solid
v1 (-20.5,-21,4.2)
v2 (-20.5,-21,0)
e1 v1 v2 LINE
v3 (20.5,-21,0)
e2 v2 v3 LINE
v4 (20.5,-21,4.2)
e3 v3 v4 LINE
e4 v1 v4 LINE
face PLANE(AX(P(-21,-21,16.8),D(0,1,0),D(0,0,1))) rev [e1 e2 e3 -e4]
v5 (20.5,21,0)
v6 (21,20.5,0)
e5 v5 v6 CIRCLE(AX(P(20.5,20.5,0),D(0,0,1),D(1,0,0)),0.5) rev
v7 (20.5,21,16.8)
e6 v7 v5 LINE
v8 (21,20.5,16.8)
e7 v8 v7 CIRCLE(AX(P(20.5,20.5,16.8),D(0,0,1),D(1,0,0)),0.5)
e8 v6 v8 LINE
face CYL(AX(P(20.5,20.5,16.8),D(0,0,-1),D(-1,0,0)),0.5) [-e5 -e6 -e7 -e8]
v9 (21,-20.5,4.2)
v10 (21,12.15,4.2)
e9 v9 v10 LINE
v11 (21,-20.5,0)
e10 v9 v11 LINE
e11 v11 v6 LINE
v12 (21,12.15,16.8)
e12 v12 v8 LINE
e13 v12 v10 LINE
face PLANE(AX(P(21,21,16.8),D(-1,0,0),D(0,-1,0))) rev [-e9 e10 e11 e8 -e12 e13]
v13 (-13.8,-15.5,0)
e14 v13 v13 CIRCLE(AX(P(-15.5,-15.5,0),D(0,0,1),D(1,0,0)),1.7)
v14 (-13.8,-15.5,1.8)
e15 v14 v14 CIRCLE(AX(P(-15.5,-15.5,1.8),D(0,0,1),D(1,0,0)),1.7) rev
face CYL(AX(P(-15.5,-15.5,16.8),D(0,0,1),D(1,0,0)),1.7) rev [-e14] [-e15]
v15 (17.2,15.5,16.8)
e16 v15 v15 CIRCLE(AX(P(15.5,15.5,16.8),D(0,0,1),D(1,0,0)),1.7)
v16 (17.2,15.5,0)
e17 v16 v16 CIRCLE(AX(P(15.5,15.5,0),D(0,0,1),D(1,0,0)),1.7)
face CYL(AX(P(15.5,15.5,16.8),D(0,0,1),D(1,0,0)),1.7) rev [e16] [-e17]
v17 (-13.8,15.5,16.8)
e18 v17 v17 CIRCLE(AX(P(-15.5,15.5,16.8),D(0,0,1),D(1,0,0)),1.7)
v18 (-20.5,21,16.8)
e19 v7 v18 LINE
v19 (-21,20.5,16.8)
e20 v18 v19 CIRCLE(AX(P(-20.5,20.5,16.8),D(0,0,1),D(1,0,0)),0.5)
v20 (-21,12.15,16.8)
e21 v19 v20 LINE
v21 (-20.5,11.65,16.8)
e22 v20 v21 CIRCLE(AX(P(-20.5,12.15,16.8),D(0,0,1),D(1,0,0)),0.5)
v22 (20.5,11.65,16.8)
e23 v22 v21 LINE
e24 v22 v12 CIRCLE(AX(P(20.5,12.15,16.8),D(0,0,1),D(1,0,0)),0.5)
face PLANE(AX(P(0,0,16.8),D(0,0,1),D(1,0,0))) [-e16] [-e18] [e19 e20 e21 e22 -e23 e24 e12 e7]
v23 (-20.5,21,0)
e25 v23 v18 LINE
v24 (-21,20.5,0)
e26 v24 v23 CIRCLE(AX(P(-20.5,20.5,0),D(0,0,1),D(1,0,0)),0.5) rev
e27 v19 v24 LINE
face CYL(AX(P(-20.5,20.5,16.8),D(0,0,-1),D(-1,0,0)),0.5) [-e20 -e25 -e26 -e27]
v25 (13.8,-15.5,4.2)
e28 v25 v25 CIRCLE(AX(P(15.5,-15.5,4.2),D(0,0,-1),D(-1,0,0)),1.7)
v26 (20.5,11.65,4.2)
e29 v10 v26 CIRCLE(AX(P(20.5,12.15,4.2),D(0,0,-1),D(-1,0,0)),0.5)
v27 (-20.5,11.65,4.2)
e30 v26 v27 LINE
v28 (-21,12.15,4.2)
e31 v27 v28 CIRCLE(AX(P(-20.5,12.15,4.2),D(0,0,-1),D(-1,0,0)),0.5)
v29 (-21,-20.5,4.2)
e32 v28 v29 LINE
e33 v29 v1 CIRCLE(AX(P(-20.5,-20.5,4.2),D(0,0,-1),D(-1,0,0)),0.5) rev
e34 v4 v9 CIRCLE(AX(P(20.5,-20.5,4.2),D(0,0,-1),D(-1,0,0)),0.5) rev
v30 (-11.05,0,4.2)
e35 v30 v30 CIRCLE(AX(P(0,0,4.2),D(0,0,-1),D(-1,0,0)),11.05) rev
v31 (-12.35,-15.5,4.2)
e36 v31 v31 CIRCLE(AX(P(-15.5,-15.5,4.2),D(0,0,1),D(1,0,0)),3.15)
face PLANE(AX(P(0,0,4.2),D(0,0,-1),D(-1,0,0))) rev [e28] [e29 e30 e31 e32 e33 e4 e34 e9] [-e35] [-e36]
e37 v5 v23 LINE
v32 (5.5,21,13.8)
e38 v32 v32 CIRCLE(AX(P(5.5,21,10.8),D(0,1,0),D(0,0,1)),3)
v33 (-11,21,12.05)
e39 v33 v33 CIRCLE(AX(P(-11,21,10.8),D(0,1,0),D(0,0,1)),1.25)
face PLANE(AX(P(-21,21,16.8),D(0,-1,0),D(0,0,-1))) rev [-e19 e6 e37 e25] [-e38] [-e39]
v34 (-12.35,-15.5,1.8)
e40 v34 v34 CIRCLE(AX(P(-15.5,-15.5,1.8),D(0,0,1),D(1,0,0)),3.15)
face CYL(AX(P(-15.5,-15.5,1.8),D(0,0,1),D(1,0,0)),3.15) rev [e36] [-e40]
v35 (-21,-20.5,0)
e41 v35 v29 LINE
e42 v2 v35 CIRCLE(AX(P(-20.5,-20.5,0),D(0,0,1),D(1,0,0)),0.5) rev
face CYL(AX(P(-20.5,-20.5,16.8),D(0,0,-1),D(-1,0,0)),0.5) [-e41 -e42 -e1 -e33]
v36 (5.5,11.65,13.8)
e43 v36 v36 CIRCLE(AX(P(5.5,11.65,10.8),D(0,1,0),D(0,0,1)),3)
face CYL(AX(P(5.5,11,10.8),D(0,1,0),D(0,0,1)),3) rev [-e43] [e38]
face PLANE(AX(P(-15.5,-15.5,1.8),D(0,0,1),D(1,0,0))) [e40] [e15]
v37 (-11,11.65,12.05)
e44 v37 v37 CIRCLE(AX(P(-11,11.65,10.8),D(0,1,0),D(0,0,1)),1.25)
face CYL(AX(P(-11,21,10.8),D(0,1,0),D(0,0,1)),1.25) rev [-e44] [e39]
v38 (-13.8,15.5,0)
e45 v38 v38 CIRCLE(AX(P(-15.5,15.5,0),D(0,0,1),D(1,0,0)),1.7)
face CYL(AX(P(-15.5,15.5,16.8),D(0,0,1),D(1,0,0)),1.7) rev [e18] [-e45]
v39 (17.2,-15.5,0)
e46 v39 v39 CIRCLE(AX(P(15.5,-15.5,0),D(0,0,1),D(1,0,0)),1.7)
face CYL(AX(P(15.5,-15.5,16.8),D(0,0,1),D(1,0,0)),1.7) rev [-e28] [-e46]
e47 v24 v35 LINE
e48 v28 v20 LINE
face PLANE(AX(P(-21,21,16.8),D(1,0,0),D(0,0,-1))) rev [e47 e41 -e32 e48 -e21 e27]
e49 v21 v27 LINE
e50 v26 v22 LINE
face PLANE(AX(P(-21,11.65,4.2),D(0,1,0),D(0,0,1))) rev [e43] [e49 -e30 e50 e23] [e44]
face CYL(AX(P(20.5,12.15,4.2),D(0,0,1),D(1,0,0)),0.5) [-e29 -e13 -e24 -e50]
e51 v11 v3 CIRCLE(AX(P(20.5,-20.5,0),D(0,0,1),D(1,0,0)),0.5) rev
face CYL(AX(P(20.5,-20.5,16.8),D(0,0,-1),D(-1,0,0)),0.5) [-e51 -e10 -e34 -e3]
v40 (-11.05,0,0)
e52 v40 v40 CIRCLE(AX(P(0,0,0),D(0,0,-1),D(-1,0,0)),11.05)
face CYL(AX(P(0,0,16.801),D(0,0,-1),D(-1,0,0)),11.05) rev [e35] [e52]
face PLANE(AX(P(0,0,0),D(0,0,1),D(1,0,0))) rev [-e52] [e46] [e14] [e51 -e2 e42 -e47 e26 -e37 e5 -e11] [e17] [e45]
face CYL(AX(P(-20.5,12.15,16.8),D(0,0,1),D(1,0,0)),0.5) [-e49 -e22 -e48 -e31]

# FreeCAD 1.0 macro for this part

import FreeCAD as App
import Part
import Sketcher
from FreeCAD import Vector
Q = App.Units.Quantity


def edges_at(feature, points):
    """Names of the edges that pass closest to the given points."""
    edges = feature.Shape.Edges
    near = lambda p: min(range(len(edges)), key=lambda i: edges[i].distToShape(Part.Vertex(*p))[0])
    return sorted({f"Edge{near(p) + 1}" for p in points})


def add_polygon(sketch, points):
    """Adds a closed chain of lines whose ends are joined by coincident constraints."""
    first, n = sketch.GeometryCount, len(points)
    for a, b in zip(points, points[1:] + points[:1]):
        sketch.addGeometry(Part.LineSegment(App.Vector(*a, 0), App.Vector(*b, 0)), False)
    for i in range(n):
        sketch.addConstraint(Sketcher.Constraint("Coincident", first + i, 2, first + (i + 1) % n, 1))

doc = App.newDocument("Part")
body = doc.addObject("PartDesign::Body", "Body")

# Sketch on XY plane
sketch1 = doc.addObject("Sketcher::SketchObject", "Sketch")
body.addObject(sketch1)
sketch1.AttachmentSupport = (doc.XY_Plane, [""])
sketch1.MapMode = "FlatFace"
add_polygon(sketch1, [(-21, 21), (-21, -21), (21, -21), (21, 21)])  # lines 0-3
sketch1.addConstraint(Sketcher.Constraint("Vertical", 0))
sketch1.addConstraint(Sketcher.Constraint("Horizontal", 1))
sketch1.addConstraint(Sketcher.Constraint("Vertical", 2))
sketch1.addConstraint(Sketcher.Constraint("Horizontal", 3))
sketch1.addConstraint(Sketcher.Constraint("Symmetric", 0, 2, 2, 2, -1, 1))
sketch1.addConstraint(Sketcher.Constraint("Equal", 3, 0))
sketch1.addConstraint(Sketcher.Constraint("DistanceX", 1, 1, 1, 2, Q("42 mm")))
pad1 = doc.addObject("PartDesign::Pad", "Pad")
body.addObject(pad1)
pad1.Profile = sketch1
pad1.Length = 16.8

# Sketch on XY plane
sketch2 = doc.addObject("Sketcher::SketchObject", "Sketch001")
body.addObject(sketch2)
sketch2.AttachmentSupport = (doc.XY_Plane, [""])
sketch2.MapMode = "FlatFace"
sketch2.AttachmentOffset = App.Placement(Vector(0, 0, 16.8), App.Rotation())
add_polygon(sketch2, [(-21, 12), (-21, -21), (21, -21), (21, 12)])  # lines 0-3
sketch2.addConstraint(Sketcher.Constraint("Vertical", 0))
sketch2.addConstraint(Sketcher.Constraint("Horizontal", 1))
sketch2.addConstraint(Sketcher.Constraint("Vertical", 2))
sketch2.addConstraint(Sketcher.Constraint("Horizontal", 3))
sketch2.addConstraint(Sketcher.Constraint("DistanceX", 1, 1, 1, 2, Q("42 mm")))
sketch2.addConstraint(Sketcher.Constraint("DistanceX", 0, 2, -1, 1, Q("21 mm")))
sketch2.addConstraint(Sketcher.Constraint("DistanceY", 0, 2, -1, 1, Q("21 mm")))
sketch2.addConstraint(Sketcher.Constraint("DistanceY", 0, 2, 0, 1, Q("32.65 mm")))
pocket1 = doc.addObject("PartDesign::Pocket", "Pocket")
body.addObject(pocket1)
pocket1.Profile = sketch2
pocket1.Length = 12.6

# Sketch on XY plane
sketch3 = doc.addObject("Sketcher::SketchObject", "Sketch002")
body.addObject(sketch3)
sketch3.AttachmentSupport = (doc.XY_Plane, [""])
sketch3.MapMode = "FlatFace"
sketch3.addGeometry(Part.Circle(Vector(0, 0, 0), Vector(0, 0, 1), 11), False)
sketch3.addConstraint(Sketcher.Constraint("Coincident", 0, 3, -1, 1))
sketch3.addConstraint(Sketcher.Constraint("Diameter", 0, Q("22.1 mm")))
pocket2 = doc.addObject("PartDesign::Pocket", "Pocket001")
body.addObject(pocket2)
pocket2.Profile = sketch3
pocket2.Type = "UpToFirst"
pocket2.Reversed = True

# Sketch on XY plane
sketch4 = doc.addObject("Sketcher::SketchObject", "Sketch003")
body.addObject(sketch4)
sketch4.AttachmentSupport = (doc.XY_Plane, [""])
sketch4.MapMode = "FlatFace"
sketch4.AttachmentOffset = App.Placement(Vector(0, 0, 16.8), App.Rotation())
sketch4.addGeometry(Part.Circle(Vector(15.5, 15.5, 0), Vector(0, 0, 1), 1.7), False)
sketch4.addGeometry(Part.Circle(Vector(-15.5, 15.5, 0), Vector(0, 0, 1), 1.7), False)
sketch4.addGeometry(Part.Circle(Vector(-15.5, -15.5, 0), Vector(0, 0, 1), 1.7), False)
sketch4.addGeometry(Part.Circle(Vector(15.5, -15.5, 0), Vector(0, 0, 1), 1.7), False)
sketch4.addConstraint(Sketcher.Constraint("Equal", 0, 1))
sketch4.addConstraint(Sketcher.Constraint("Equal", 1, 2))
sketch4.addConstraint(Sketcher.Constraint("Equal", 2, 3))
sketch4.addConstraint(Sketcher.Constraint("Symmetric", 0, 3, 2, 3, -1, 1))
sketch4.addConstraint(Sketcher.Constraint("Symmetric", 1, 3, 3, 3, -1, 1))
sketch4.addConstraint(Sketcher.Constraint("Symmetric", 0, 3, 1, 3, -2))
sketch4.addConstraint(Sketcher.Constraint("Diameter", 0, Q("3.4 mm")))
sketch4.addConstraint(Sketcher.Constraint("DistanceX", 1, 3, 0, 3, Q("31 mm")))
sketch4.addConstraint(Sketcher.Constraint("DistanceY", 2, 3, 1, 3, Q("31 mm")))
doc.recompute()
hole = doc.addObject("PartDesign::Hole", "Hole")
body.addObject(hole)
hole.Profile = sketch4
hole.ThreadType = "None"
hole.Diameter = 3.4
hole.DepthType = "ThroughAll"

# Sketch on XY plane
sketch5 = doc.addObject("Sketcher::SketchObject", "Sketch004")
body.addObject(sketch5)
sketch5.AttachmentSupport = (doc.XY_Plane, [""])
sketch5.MapMode = "FlatFace"
sketch5.AttachmentOffset = App.Placement(Vector(0, 0, 4.2), App.Rotation())
sketch5.addGeometry(Part.Circle(Vector(-15.5, -15.5, 0), Vector(0, 0, 1), 3.1), False)
sketch5.addConstraint(Sketcher.Constraint("Diameter", 0, Q("6.3 mm")))
sketch5.addConstraint(Sketcher.Constraint("DistanceX", 0, 3, -1, 1, Q("15.5 mm")))
sketch5.addConstraint(Sketcher.Constraint("DistanceY", 0, 3, -1, 1, Q("15.5 mm")))
pocket3 = doc.addObject("PartDesign::Pocket", "Pocket002")
body.addObject(pocket3)
pocket3.Profile = sketch5
pocket3.Length = 2.4

# Sketch on XZ plane
sketch6 = doc.addObject("Sketcher::SketchObject", "Sketch005")
body.addObject(sketch6)
sketch6.AttachmentSupport = (doc.XZ_Plane, [""])
sketch6.MapMode = "FlatFace"
sketch6.AttachmentOffset = App.Placement(Vector(0, 0, -21), App.Rotation())
sketch6.addGeometry(Part.Circle(Vector(-11, 10.8, 0), Vector(0, 0, 1), 1.2), False)
sketch6.addConstraint(Sketcher.Constraint("Diameter", 0, Q("2.5 mm")))
sketch6.addConstraint(Sketcher.Constraint("DistanceX", 0, 3, -1, 1, Q("11 mm")))
sketch6.addConstraint(Sketcher.Constraint("DistanceY", -1, 1, 0, 3, Q("10.8 mm")))
doc.recompute()
hole2 = doc.addObject("PartDesign::Hole", "Hole001")
body.addObject(hole2)
hole2.Profile = sketch6
hole2.ThreadType = "None"
hole2.Diameter = 2.5
hole2.DepthType = "ThroughAll"
hole2.Reversed = True
doc.recompute()

fillet = doc.addObject("PartDesign::Fillet", "Fillet")
body.addObject(fillet)
fillet.Base = (hole2, edges_at(hole2, [
    (21, -21, 2.1),
    (-21, -21, 2.1),
    (-21, 11.65, 10.5),
    (21, 11.65, 10.5),
    (-21, 21, 8.4),
    (21, 21, 8.4),
]))
fillet.Radius = 0.5

# Sketch on XZ plane
sketch7 = doc.addObject("Sketcher::SketchObject", "Sketch006")
body.addObject(sketch7)
sketch7.AttachmentSupport = (doc.XZ_Plane, [""])
sketch7.MapMode = "FlatFace"
sketch7.AttachmentOffset = App.Placement(Vector(0, 0, -21), App.Rotation())
sketch7.addGeometry(Part.Circle(Vector(5.5, 10.8, 0), Vector(0, 0, 1), 3), False)
sketch7.addConstraint(Sketcher.Constraint("Diameter", 0, Q("6 mm")))
sketch7.addConstraint(Sketcher.Constraint("DistanceX", -1, 1, 0, 3, Q("5.5 mm")))
sketch7.addConstraint(Sketcher.Constraint("DistanceY", -1, 1, 0, 3, Q("10.8 mm")))
pocket4 = doc.addObject("PartDesign::Pocket", "Pocket003")
body.addObject(pocket4)
pocket4.Profile = sketch7
pocket4.Length = 10
pocket4.Reversed = True

doc.recompute()
